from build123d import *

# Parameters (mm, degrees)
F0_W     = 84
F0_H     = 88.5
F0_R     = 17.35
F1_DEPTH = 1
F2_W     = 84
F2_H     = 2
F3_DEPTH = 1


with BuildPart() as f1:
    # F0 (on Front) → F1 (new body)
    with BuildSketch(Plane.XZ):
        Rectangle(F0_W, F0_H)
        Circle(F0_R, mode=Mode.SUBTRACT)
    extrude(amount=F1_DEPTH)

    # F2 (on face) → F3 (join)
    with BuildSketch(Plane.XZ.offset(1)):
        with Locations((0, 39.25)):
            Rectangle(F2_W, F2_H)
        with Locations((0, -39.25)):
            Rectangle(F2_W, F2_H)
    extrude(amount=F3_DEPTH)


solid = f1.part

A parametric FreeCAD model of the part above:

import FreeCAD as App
import Part
import Sketcher
from FreeCAD import Vector

doc = App.newDocument("Part")
body = doc.addObject("PartDesign::Body", "Body")

sketch1 = body.newObject("Sketcher::SketchObject", "Sketch")
sketch1.AttachmentSupport = (doc.getObject("XZ_Plane"), [""])
sketch1.MapMode = "FlatFace"
sketch1.addGeometry([
    Part.LineSegment(Vector(-42, 44, 0), Vector(-42, -44, 0)),
    Part.LineSegment(Vector(-42, -44, 0), Vector(42, -44, 0)),
    Part.LineSegment(Vector(42, -44, 0), Vector(42, 44, 0)),
    Part.LineSegment(Vector(42, 44, 0), Vector(-42, 44, 0)),
    Part.Circle(Vector(0, 0, 0), Vector(0, 0, 1), 17),
], False)
sketch1.addConstraint([
    Sketcher.Constraint("Coincident", 0, 2, 1, 1),
    Sketcher.Constraint("Coincident", 1, 2, 2, 1),
    Sketcher.Constraint("Coincident", 2, 2, 3, 1),
    Sketcher.Constraint("Coincident", 3, 2, 0, 1),
    Sketcher.Constraint("Vertical", 0),
    Sketcher.Constraint("Horizontal", 1),
    Sketcher.Constraint("Vertical", 2),
    Sketcher.Constraint("Horizontal", 3),
    Sketcher.Constraint("Coincident", 4, 3, -1, 1),
    Sketcher.Constraint("Symmetric", 0, 2, 2, 2, -1, 1),
    Sketcher.Constraint("Diameter", 4, 34.7),
    Sketcher.Constraint("DistanceX", 1, 1, 1, 2, 84.0),
    Sketcher.Constraint("DistanceY", 0, 2, 0, 1, 88.5),
])
pad1 = body.newObject("PartDesign::Pad", "Pad")
pad1.Profile = sketch1
pad1.Length = 1

sketch2 = body.newObject("Sketcher::SketchObject", "Sketch001")
sketch2.AttachmentSupport = (doc.getObject("XZ_Plane"), [""])
sketch2.MapMode = "FlatFace"
sketch2.AttachmentOffset = App.Placement(Vector(0, 0, 1), App.Rotation())
sketch2.addGeometry([
    Part.LineSegment(Vector(-42, 40.2, 0), Vector(-42, 38.2, 0)),
    Part.LineSegment(Vector(-42, 38.2, 0), Vector(42, 38.2, 0)),
    Part.LineSegment(Vector(42, 38.2, 0), Vector(42, 40.2, 0)),
    Part.LineSegment(Vector(42, 40.2, 0), Vector(-42, 40.2, 0)),
    Part.LineSegment(Vector(-42, -38.2, 0), Vector(-42, -40.2, 0)),
    Part.LineSegment(Vector(-42, -40.2, 0), Vector(42, -40.2, 0)),
    Part.LineSegment(Vector(42, -40.2, 0), Vector(42, -38.2, 0)),
    Part.LineSegment(Vector(42, -38.2, 0), Vector(-42, -38.2, 0)),
], False)
sketch2.addConstraint([
    Sketcher.Constraint("Coincident", 0, 2, 1, 1),
    Sketcher.Constraint("Coincident", 1, 2, 2, 1),
    Sketcher.Constraint("Coincident", 2, 2, 3, 1),
    Sketcher.Constraint("Coincident", 3, 2, 0, 1),
    Sketcher.Constraint("Coincident", 4, 2, 5, 1),
    Sketcher.Constraint("Coincident", 5, 2, 6, 1),
    Sketcher.Constraint("Coincident", 6, 2, 7, 1),
    Sketcher.Constraint("Coincident", 7, 2, 4, 1),
    Sketcher.Constraint("Vertical", 0),
    Sketcher.Constraint("Horizontal", 1),
    Sketcher.Constraint("Vertical", 2),
    Sketcher.Constraint("Horizontal", 3),
    Sketcher.Constraint("Vertical", 4),
    Sketcher.Constraint("Horizontal", 5),
    Sketcher.Constraint("Vertical", 6),
    Sketcher.Constraint("Horizontal", 7),
    Sketcher.Constraint("Symmetric", 2, 2, 4, 2, -1, 1),
    Sketcher.Constraint("Symmetric", 0, 2, 6, 2, -1, 1),
    Sketcher.Constraint("Vertical", 3, 2, 4, 2),
    Sketcher.Constraint("DistanceX", 1, 1, 1, 2, 84.0),
    Sketcher.Constraint("DistanceY", 0, 2, 0, 1, 2.0),
    Sketcher.Constraint("DistanceY", 4, 2, 0, 2, 78.5),
])
pad2 = body.newObject("PartDesign::Pad", "Pad001")
pad2.Profile = sketch2
pad2.Length = 1

doc.recompute()
